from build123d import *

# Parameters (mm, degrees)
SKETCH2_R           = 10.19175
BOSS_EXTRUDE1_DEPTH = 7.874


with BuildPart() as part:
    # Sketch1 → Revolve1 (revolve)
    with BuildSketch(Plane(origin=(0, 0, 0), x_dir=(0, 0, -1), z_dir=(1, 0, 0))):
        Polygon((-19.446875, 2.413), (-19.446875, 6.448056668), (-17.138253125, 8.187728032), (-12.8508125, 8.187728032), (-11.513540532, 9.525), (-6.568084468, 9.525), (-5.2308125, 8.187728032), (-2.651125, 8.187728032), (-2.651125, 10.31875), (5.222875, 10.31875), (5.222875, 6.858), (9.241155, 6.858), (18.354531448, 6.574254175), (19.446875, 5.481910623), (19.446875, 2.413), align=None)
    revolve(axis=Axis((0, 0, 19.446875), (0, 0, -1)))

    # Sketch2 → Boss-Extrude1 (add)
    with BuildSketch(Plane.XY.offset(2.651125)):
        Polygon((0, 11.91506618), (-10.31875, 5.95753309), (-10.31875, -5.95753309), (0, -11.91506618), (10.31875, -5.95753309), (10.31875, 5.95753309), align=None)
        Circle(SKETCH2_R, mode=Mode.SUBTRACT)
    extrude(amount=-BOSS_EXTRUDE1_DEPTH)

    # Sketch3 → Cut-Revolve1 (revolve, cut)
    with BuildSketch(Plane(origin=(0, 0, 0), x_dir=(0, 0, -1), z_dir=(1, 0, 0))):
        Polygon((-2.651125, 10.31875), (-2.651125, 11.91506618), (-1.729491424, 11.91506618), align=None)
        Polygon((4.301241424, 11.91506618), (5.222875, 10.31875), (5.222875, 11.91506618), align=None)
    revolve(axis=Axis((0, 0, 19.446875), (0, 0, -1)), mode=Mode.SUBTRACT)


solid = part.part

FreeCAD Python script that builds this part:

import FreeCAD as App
import Part
import Sketcher
from FreeCAD import Vector
Q = App.Units.Quantity

doc = App.newDocument("Part")
body = doc.addObject("PartDesign::Body", "Body")

# Sketch on YZ plane
sketch1 = body.newObject("Sketcher::SketchObject", "Sketch")
sketch1.AttachmentSupport = (doc.getObject("YZ_Plane"), [""])
sketch1.MapMode = "FlatFace"
sketch1.addGeometry([
    Part.LineSegment(Vector(6.4, 19.4, 0), Vector(2.4, 19.4, 0)),  # 0
    Part.LineSegment(Vector(2.4, 19.4, 0), Vector(2.4, -19.4, 0)),  # 1
    Part.LineSegment(Vector(2.4, -19.4, 0), Vector(5.5, -19.4, 0)),  # 2
    Part.LineSegment(Vector(5.5, -19.4, 0), Vector(6.6, -18.4, 0)),  # 3
    Part.LineSegment(Vector(6.6, -18.4, 0), Vector(6.9, -9.2, 0)),  # 4
    Part.LineSegment(Vector(6.9, -9.2, 0), Vector(6.9, -5.2, 0)),  # 5
    Part.LineSegment(Vector(6.9, -5.2, 0), Vector(10.3, -5.2, 0)),  # 6
    Part.LineSegment(Vector(10.3, -5.2, 0), Vector(10.3, 2.7, 0)),  # 7
    Part.LineSegment(Vector(10.3, 2.7, 0), Vector(8.2, 2.7, 0)),  # 8
    Part.LineSegment(Vector(8.2, 2.7, 0), Vector(8.2, 5.2, 0)),  # 9
    Part.LineSegment(Vector(8.2, 5.2, 0), Vector(9.5, 6.6, 0)),  # 10
    Part.LineSegment(Vector(9.5, 6.6, 0), Vector(9.5, 11.5, 0)),  # 11
    Part.LineSegment(Vector(9.5, 11.5, 0), Vector(8.2, 12.9, 0)),  # 12
    Part.LineSegment(Vector(8.2, 12.9, 0), Vector(8.2, 17.1, 0)),  # 13
    Part.LineSegment(Vector(8.2, 17.1, 0), Vector(6.4, 19.4, 0)),  # 14
], False)
sketch1.addConstraint([
    Sketcher.Constraint("Coincident", 0, 2, 1, 1),
    Sketcher.Constraint("Coincident", 1, 2, 2, 1),
    Sketcher.Constraint("Coincident", 2, 2, 3, 1),
    Sketcher.Constraint("Coincident", 3, 2, 4, 1),
    Sketcher.Constraint("Coincident", 4, 2, 5, 1),
    Sketcher.Constraint("Coincident", 5, 2, 6, 1),
    Sketcher.Constraint("Coincident", 6, 2, 7, 1),
    Sketcher.Constraint("Coincident", 7, 2, 8, 1),
    Sketcher.Constraint("Coincident", 8, 2, 9, 1),
    Sketcher.Constraint("Coincident", 9, 2, 10, 1),
    Sketcher.Constraint("Coincident", 10, 2, 11, 1),
    Sketcher.Constraint("Coincident", 11, 2, 12, 1),
    Sketcher.Constraint("Coincident", 12, 2, 13, 1),
    Sketcher.Constraint("Coincident", 13, 2, 14, 1),
    Sketcher.Constraint("Coincident", 14, 2, 0, 1),
    Sketcher.Constraint("Horizontal", 0),
    Sketcher.Constraint("Vertical", 1),
    Sketcher.Constraint("Horizontal", 2),
    Sketcher.Constraint("Vertical", 5),
    Sketcher.Constraint("Horizontal", 6),
    Sketcher.Constraint("Vertical", 7),
    Sketcher.Constraint("Horizontal", 8),
    Sketcher.Constraint("Vertical", 9),
    Sketcher.Constraint("Vertical", 11),
    Sketcher.Constraint("Vertical", 13),
    Sketcher.Constraint("Parallel", 3, 10),
    Sketcher.Constraint("Perpendicular", 10, 12),
    Sketcher.Constraint("Vertical", 9, 2, 12, 2),
    Sketcher.Constraint("Equal", 10, 12),
    Sketcher.Constraint("Angle", 14, Q("127 deg")),
    Sketcher.Constraint("DistanceY", 7, 1, 7, 2, Q("0.31 in")),
    Sketcher.Constraint("DistanceY", 9, 2, 12, 2, Q("0.3 in")),
    Sketcher.Constraint("DistanceY", 1, 2, 1, 1, Q("1.53125 in")),
    Sketcher.Constraint("DistanceX", -1, 1, 4, 2, Q("0.27 in")),
    Sketcher.Constraint("DistanceY", 2, 2, 5, 2, Q("0.56 in")),
    Sketcher.Constraint("DistanceX", 0, 2, 11, 2, Q("0.28 in")),
    Sketcher.Constraint("DistanceY", 5, 1, 5, 2, Q("0.1582 in")),
    Sketcher.Constraint("DistanceX", -1, 1, 0, 2, Q("0.095 in")),
    Sketcher.Constraint("DistanceY", -1, 1, 0, 2, Q("0.765625 in")),
    Sketcher.Constraint("DistanceX", -1, 1, 6, 2, Q("0.40625 in")),
    Sketcher.Constraint("DistanceX", 2, 1, 2, 2, Q("3.068911 mm")),
    Sketcher.Constraint("DistanceX", 8, 2, 8, 1, Q("2.131022 mm")),
    Sketcher.Constraint("DistanceY", 13, 1, 13, 2, Q("4.287441 mm")),
    Sketcher.Constraint("DistanceX", 0, 2, 0, 1, Q("4.035057 mm")),
    Sketcher.Constraint("DistanceY", 3, 2, -1, 1, Q("18.354531 mm")),
])
revolution = body.newObject("PartDesign::Revolution", "Revolution")
revolution.Profile = sketch1
revolution.ReferenceAxis = (sketch1, ["V_Axis"])
revolution.Angle = 360

# Sketch on XY plane
sketch2 = body.newObject("Sketcher::SketchObject", "Sketch001")
sketch2.AttachmentSupport = (doc.getObject("XY_Plane"), [""])
sketch2.MapMode = "FlatFace"
sketch2.AttachmentOffset = App.Placement(Vector(0, 0, 2.651125), App.Rotation())
sketch2.addGeometry([
    Part.LineSegment(Vector(0, 12, 0), Vector(-10, 6, 0)),  # 0
    Part.LineSegment(Vector(-10, 6, 0), Vector(-10, -6, 0)),  # 1
    Part.LineSegment(Vector(-10, -6, 0), Vector(0, -12, 0)),  # 2
    Part.LineSegment(Vector(0, -12, 0), Vector(10, -6, 0)),  # 3
    Part.LineSegment(Vector(10, -6, 0), Vector(10, 6, 0)),  # 4
    Part.LineSegment(Vector(10, 6, 0), Vector(0, 12, 0)),  # 5
    Part.Circle(Vector(0, 0, 0), Vector(0, 0, 1), 10),  # 6
], False)
sketch2.addConstraint([
    Sketcher.Constraint("Coincident", 0, 2, 1, 1),
    Sketcher.Constraint("Coincident", 1, 2, 2, 1),
    Sketcher.Constraint("Coincident", 2, 2, 3, 1),
    Sketcher.Constraint("Coincident", 3, 2, 4, 1),
    Sketcher.Constraint("Coincident", 4, 2, 5, 1),
    Sketcher.Constraint("Coincident", 5, 2, 0, 1),
    Sketcher.Constraint("Vertical", 1),
    Sketcher.Constraint("Vertical", 4),
    Sketcher.Constraint("Coincident", 6, 3, -1, 1),
    Sketcher.Constraint("Symmetric", 0, 2, 3, 2, -1, 1),
    Sketcher.Constraint("Symmetric", 2, 2, 5, 2, -1, 1),
    Sketcher.Constraint("PointOnObject", 2, 2, -2),
    Sketcher.Constraint("Parallel", 2, 5),
    Sketcher.Constraint("Horizontal", 1, 2, 3, 2),
    Sketcher.Constraint("Angle", 0, Q("-150 deg")),
    Sketcher.Constraint("Diameter", 6, Q("0.8025 in")),
    Sketcher.Constraint("DistanceX", 0, 2, -1, 1, Q("0.40625 in")),
    Sketcher.Constraint("DistanceY", 2, 2, 0, 2, Q("17.872599 mm")),
])
pad1 = body.newObject("PartDesign::Pad", "Pad")
pad1.Profile = sketch2
pad1.Length = Q("0.31 in")
pad1.Reversed = True

# Sketch on YZ plane
sketch3 = body.newObject("Sketcher::SketchObject", "Sketch002")
sketch3.AttachmentSupport = (doc.getObject("YZ_Plane"), [""])
sketch3.MapMode = "FlatFace"
sketch3.addGeometry([
    Part.LineSegment(Vector(11.9, 2.7, 0), Vector(10.3, 2.7, 0)),  # 0
    Part.LineSegment(Vector(10.3, 2.7, 0), Vector(11.9, 1.7, 0)),  # 1
    Part.LineSegment(Vector(11.9, 1.7, 0), Vector(11.9, 2.7, 0)),  # 2
    Part.LineSegment(Vector(11.9, -4.3, 0), Vector(10.3, -5.2, 0)),  # 3
    Part.LineSegment(Vector(10.3, -5.2, 0), Vector(11.9, -5.2, 0)),  # 4
    Part.LineSegment(Vector(11.9, -5.2, 0), Vector(11.9, -4.3, 0)),  # 5
], False)
sketch3.addConstraint([
    Sketcher.Constraint("Coincident", 0, 2, 1, 1),
    Sketcher.Constraint("Coincident", 1, 2, 2, 1),
    Sketcher.Constraint("Coincident", 2, 2, 0, 1),
    Sketcher.Constraint("Coincident", 3, 2, 4, 1),
    Sketcher.Constraint("Coincident", 4, 2, 5, 1),
    Sketcher.Constraint("Coincident", 5, 2, 3, 1),
    Sketcher.Constraint("Horizontal", 0),
    Sketcher.Constraint("Vertical", 2),
    Sketcher.Constraint("Horizontal", 4),
    Sketcher.Constraint("Vertical", 5),
    Sketcher.Constraint("Vertical", 0, 2, 3, 2),
    Sketcher.Constraint("Vertical", 2, 2, 4, 2),
    Sketcher.Constraint("Equal", 2, 5),
    Sketcher.Constraint("Angle", 1, Q("-30 deg")),
    Sketcher.Constraint("DistanceY", 3, 2, 0, 2, Q("0.31 in")),
    Sketcher.Constraint("DistanceX", -1, 1, 0, 2, Q("0.40625 in")),
    Sketcher.Constraint("DistanceX", 0, 2, 0, 1, Q("1.596316 mm")),
    Sketcher.Constraint("DistanceY", -1, 1, 1, 2, Q("1.729491 mm")),
])
groove = body.newObject("PartDesign::Groove", "Groove")
groove.Profile = sketch3
groove.ReferenceAxis = (sketch3, ["V_Axis"])
groove.Angle = 360

doc.recompute()
